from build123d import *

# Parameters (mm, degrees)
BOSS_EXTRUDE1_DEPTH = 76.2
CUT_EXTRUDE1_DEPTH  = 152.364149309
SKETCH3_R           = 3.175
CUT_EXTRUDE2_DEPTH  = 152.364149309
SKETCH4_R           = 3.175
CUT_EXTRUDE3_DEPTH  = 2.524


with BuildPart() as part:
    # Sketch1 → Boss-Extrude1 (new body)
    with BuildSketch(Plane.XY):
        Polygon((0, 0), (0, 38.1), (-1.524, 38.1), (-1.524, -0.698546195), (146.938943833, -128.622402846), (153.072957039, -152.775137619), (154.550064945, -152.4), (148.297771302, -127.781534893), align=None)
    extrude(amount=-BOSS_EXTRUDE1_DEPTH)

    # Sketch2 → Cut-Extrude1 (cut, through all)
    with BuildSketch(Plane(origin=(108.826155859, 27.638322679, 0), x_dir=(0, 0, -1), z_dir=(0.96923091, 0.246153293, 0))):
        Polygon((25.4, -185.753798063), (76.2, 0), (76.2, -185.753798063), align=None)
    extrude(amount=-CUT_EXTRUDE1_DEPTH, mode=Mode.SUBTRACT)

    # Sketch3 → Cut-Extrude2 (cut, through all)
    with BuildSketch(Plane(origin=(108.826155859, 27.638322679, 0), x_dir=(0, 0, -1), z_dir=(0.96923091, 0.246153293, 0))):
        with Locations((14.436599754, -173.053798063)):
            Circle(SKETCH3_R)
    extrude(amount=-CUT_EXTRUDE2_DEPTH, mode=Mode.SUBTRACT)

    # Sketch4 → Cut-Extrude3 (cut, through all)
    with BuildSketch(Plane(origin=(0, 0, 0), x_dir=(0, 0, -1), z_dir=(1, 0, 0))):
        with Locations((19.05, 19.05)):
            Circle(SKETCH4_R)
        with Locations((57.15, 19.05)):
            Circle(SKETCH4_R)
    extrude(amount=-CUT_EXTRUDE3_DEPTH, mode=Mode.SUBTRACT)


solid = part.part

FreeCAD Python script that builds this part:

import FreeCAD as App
import Part
import Sketcher
from FreeCAD import Vector
Q = App.Units.Quantity

doc = App.newDocument("Part")
params = doc.addObject("Spreadsheet::Sheet", "Params")
for row, (alias, value) in enumerate([
    ("sketch1_length", "1 in"),
    ("sketch1_height", "1.5 in"),
    ("sketch1_width", "0.06 in"),
    ("sketch1_length2", "0.06 in"),
    ("pad1_length", "3 in"),
    ("sketch2_width", "2 in"),
    ("sketch3_diameter", "0.25 in"),
    ("sketch4_diameter", "0.25 in"),
], start=1):
    params.set(f"A{row}", alias)
    params.set(f"B{row}", "=" + value)
    params.setAlias(f"B{row}", alias)

body = doc.addObject("PartDesign::Body", "Body")

# Sketch on XY plane
sketch1 = doc.addObject("Sketcher::SketchObject", "Sketch")
body.addObject(sketch1)
sketch1.AttachmentSupport = (doc.XY_Plane, [""])
sketch1.MapMode = "FlatFace"
sketch1.addGeometry([
    Part.LineSegment(Vector(0, 0, 0), Vector(0, 38.1, 0)),  # 0
    Part.LineSegment(Vector(0, 38.1, 0), Vector(-1.524, 38.1, 0)),  # 1
    Part.LineSegment(Vector(-1.524, 38.1, 0), Vector(-1.524, -0.698546, 0)),  # 2
    Part.LineSegment(Vector(-1.524, -0.698546, 0), Vector(146.938944, -128.622403, 0)),  # 3
    Part.LineSegment(Vector(146.938944, -128.622403, 0), Vector(153.072957, -152.775138, 0)),  # 4
    Part.LineSegment(Vector(153.072957, -152.775138, 0), Vector(154.550065, -152.4, 0)),  # 5
    Part.LineSegment(Vector(154.550065, -152.4, 0), Vector(148.297771, -127.781535, 0)),  # 6
    Part.LineSegment(Vector(148.297771, -127.781535, 0), Vector(0, 0, 0)),  # 7
], False)
sketch1.addConstraint([
    Sketcher.Constraint("Coincident", 0, 2, 1, 1),
    Sketcher.Constraint("Coincident", 1, 2, 2, 1),
    Sketcher.Constraint("Coincident", 2, 2, 3, 1),
    Sketcher.Constraint("Coincident", 3, 2, 4, 1),
    Sketcher.Constraint("Coincident", 4, 2, 5, 1),
    Sketcher.Constraint("Coincident", 5, 2, 6, 1),
    Sketcher.Constraint("Coincident", 6, 2, 7, 1),
    Sketcher.Constraint("Coincident", 7, 2, 0, 1),
    Sketcher.Constraint("Vertical", 0),
    Sketcher.Constraint("Horizontal", 1),
    Sketcher.Constraint("Vertical", 2),
    Sketcher.Constraint("Coincident", 7, 2, -1, 1),
    Sketcher.Constraint("Perpendicular", 4, 5),
    Sketcher.Constraint("Perpendicular", 5, 6),
    Sketcher.Constraint("Parallel", 3, 7),
    Sketcher.Constraint("Distance", 6, Q("1 in")),
    Sketcher.Constraint("DistanceY", 0, 1, 0, 2, Q("1.5 in")),
    Sketcher.Constraint("DistanceY", 5, 2, -1, 1, Q("6 in")),
    Sketcher.Constraint("DistanceX", 1, 2, 1, 1, Q("0.06 in")),
    Sketcher.Constraint("Distance", 5, Q("0.06 in")),
    Sketcher.Constraint("Angle", 3, Q("-40.75 deg")),
    Sketcher.Constraint("Angle", 4, Q("-75.75 deg")),
    Sketcher.Constraint("DistanceY", 2, 2, 2, 1, 38.798546),
])
sketch1.setExpression("Constraints[15]", "Params.sketch1_length")
sketch1.setExpression("Constraints[16]", "Params.sketch1_height")
sketch1.setExpression("Constraints[18]", "Params.sketch1_width")
sketch1.setExpression("Constraints[19]", "Params.sketch1_length2")
pad1 = doc.addObject("PartDesign::Pad", "Pad")
body.addObject(pad1)
pad1.Profile = sketch1
pad1.setExpression("Length", "Params.pad1_length")
pad1.Reversed = True

# Sketch on an angled plane
sketch2 = doc.addObject("Sketcher::SketchObject", "Sketch001")
body.addObject(sketch2)
sketch2.Placement = App.Placement(Vector(108.826156, 27.638323, 0), App.Rotation(Vector(0, 0, -1), Vector(-0.246153293, 0.96923091, 0), Vector(0.96923091, 0.246153293, 0), "ZXY"))
sketch2.addGeometry([
    Part.LineSegment(Vector(76.2, 0, 0), Vector(25.4, -185.753798, 0)),
    Part.LineSegment(Vector(25.4, -185.753798, 0), Vector(76.2, -185.753798, 0)),
    Part.LineSegment(Vector(76.2, -185.753798, 0), Vector(76.2, 0, 0)),
], False)
sketch2.addConstraint([
    Sketcher.Constraint("Coincident", 0, 2, 1, 1),
    Sketcher.Constraint("Coincident", 1, 2, 2, 1),
    Sketcher.Constraint("Coincident", 2, 2, 0, 1),
    Sketcher.Constraint("Horizontal", 1),
    Sketcher.Constraint("Vertical", 2),
    Sketcher.Constraint("PointOnObject", 2, 2, -1),
    Sketcher.Constraint("DistanceX", 1, 1, 1, 2, Q("2 in")),
    Sketcher.Constraint("DistanceX", -1, 1, 0, 2, Q("1 in")),
    Sketcher.Constraint("DistanceY", 2, 1, 2, 2, 185.753798),
])
sketch2.setExpression("Constraints[6]", "Params.sketch2_width")
pocket1 = doc.addObject("PartDesign::Pocket", "Pocket")
body.addObject(pocket1)
pocket1.Profile = sketch2
pocket1.Type = "ThroughAll"

# Sketch on an angled plane
sketch3 = doc.addObject("Sketcher::SketchObject", "Sketch002")
body.addObject(sketch3)
sketch3.Placement = App.Placement(Vector(108.826156, 27.638323, 0), App.Rotation(Vector(0, 0, -1), Vector(-0.246153293, 0.96923091, 0), Vector(0.96923091, 0.246153293, 0), "ZXY"))
sketch3.addGeometry(Part.Circle(Vector(14.4366, -173.053798, 0), Vector(0, 0, 1), 3.175), False)
sketch3.addConstraint([
    Sketcher.Constraint("Diameter", 0, Q("0.25 in")),
    Sketcher.Constraint("DistanceX", -1, 1, 0, 3, 14.4366),
    Sketcher.Constraint("DistanceY", 0, 3, -1, 1, 173.053798),
])
sketch3.setExpression("Constraints[0]", "Params.sketch3_diameter")
pocket2 = doc.addObject("PartDesign::Pocket", "Pocket001")
body.addObject(pocket2)
pocket2.Profile = sketch3
pocket2.Type = "ThroughAll"

# Sketch on YZ plane
sketch4 = doc.addObject("Sketcher::SketchObject", "Sketch003")
body.addObject(sketch4)
sketch4.AttachmentSupport = (doc.YZ_Plane, [""])
sketch4.MapMode = "FlatFace"
sketch4.addGeometry([
    Part.Circle(Vector(19.05, -19.05, 0), Vector(0, 0, 1), 3.175),
    Part.Circle(Vector(19.05, -57.15, 0), Vector(0, 0, 1), 3.175),
], False)
sketch4.addConstraint([
    Sketcher.Constraint("Equal", 0, 1),
    Sketcher.Constraint("Vertical", 0, 3, 1, 3),
    Sketcher.Constraint("Diameter", 0, Q("0.25 in")),
    Sketcher.Constraint("DistanceY", 1, 3, 0, 3, Q("1.5 in")),
    Sketcher.Constraint("DistanceX", -1, 1, 0, 3, Q("0.75 in")),
    Sketcher.Constraint("DistanceY", 0, 3, -1, 1, Q("0.75 in")),
])
sketch4.setExpression("Constraints[2]", "Params.sketch4_diameter")
pocket3 = doc.addObject("PartDesign::Pocket", "Pocket002")
body.addObject(pocket3)
pocket3.Profile = sketch4
pocket3.Type = "ThroughAll"

doc.recompute()
